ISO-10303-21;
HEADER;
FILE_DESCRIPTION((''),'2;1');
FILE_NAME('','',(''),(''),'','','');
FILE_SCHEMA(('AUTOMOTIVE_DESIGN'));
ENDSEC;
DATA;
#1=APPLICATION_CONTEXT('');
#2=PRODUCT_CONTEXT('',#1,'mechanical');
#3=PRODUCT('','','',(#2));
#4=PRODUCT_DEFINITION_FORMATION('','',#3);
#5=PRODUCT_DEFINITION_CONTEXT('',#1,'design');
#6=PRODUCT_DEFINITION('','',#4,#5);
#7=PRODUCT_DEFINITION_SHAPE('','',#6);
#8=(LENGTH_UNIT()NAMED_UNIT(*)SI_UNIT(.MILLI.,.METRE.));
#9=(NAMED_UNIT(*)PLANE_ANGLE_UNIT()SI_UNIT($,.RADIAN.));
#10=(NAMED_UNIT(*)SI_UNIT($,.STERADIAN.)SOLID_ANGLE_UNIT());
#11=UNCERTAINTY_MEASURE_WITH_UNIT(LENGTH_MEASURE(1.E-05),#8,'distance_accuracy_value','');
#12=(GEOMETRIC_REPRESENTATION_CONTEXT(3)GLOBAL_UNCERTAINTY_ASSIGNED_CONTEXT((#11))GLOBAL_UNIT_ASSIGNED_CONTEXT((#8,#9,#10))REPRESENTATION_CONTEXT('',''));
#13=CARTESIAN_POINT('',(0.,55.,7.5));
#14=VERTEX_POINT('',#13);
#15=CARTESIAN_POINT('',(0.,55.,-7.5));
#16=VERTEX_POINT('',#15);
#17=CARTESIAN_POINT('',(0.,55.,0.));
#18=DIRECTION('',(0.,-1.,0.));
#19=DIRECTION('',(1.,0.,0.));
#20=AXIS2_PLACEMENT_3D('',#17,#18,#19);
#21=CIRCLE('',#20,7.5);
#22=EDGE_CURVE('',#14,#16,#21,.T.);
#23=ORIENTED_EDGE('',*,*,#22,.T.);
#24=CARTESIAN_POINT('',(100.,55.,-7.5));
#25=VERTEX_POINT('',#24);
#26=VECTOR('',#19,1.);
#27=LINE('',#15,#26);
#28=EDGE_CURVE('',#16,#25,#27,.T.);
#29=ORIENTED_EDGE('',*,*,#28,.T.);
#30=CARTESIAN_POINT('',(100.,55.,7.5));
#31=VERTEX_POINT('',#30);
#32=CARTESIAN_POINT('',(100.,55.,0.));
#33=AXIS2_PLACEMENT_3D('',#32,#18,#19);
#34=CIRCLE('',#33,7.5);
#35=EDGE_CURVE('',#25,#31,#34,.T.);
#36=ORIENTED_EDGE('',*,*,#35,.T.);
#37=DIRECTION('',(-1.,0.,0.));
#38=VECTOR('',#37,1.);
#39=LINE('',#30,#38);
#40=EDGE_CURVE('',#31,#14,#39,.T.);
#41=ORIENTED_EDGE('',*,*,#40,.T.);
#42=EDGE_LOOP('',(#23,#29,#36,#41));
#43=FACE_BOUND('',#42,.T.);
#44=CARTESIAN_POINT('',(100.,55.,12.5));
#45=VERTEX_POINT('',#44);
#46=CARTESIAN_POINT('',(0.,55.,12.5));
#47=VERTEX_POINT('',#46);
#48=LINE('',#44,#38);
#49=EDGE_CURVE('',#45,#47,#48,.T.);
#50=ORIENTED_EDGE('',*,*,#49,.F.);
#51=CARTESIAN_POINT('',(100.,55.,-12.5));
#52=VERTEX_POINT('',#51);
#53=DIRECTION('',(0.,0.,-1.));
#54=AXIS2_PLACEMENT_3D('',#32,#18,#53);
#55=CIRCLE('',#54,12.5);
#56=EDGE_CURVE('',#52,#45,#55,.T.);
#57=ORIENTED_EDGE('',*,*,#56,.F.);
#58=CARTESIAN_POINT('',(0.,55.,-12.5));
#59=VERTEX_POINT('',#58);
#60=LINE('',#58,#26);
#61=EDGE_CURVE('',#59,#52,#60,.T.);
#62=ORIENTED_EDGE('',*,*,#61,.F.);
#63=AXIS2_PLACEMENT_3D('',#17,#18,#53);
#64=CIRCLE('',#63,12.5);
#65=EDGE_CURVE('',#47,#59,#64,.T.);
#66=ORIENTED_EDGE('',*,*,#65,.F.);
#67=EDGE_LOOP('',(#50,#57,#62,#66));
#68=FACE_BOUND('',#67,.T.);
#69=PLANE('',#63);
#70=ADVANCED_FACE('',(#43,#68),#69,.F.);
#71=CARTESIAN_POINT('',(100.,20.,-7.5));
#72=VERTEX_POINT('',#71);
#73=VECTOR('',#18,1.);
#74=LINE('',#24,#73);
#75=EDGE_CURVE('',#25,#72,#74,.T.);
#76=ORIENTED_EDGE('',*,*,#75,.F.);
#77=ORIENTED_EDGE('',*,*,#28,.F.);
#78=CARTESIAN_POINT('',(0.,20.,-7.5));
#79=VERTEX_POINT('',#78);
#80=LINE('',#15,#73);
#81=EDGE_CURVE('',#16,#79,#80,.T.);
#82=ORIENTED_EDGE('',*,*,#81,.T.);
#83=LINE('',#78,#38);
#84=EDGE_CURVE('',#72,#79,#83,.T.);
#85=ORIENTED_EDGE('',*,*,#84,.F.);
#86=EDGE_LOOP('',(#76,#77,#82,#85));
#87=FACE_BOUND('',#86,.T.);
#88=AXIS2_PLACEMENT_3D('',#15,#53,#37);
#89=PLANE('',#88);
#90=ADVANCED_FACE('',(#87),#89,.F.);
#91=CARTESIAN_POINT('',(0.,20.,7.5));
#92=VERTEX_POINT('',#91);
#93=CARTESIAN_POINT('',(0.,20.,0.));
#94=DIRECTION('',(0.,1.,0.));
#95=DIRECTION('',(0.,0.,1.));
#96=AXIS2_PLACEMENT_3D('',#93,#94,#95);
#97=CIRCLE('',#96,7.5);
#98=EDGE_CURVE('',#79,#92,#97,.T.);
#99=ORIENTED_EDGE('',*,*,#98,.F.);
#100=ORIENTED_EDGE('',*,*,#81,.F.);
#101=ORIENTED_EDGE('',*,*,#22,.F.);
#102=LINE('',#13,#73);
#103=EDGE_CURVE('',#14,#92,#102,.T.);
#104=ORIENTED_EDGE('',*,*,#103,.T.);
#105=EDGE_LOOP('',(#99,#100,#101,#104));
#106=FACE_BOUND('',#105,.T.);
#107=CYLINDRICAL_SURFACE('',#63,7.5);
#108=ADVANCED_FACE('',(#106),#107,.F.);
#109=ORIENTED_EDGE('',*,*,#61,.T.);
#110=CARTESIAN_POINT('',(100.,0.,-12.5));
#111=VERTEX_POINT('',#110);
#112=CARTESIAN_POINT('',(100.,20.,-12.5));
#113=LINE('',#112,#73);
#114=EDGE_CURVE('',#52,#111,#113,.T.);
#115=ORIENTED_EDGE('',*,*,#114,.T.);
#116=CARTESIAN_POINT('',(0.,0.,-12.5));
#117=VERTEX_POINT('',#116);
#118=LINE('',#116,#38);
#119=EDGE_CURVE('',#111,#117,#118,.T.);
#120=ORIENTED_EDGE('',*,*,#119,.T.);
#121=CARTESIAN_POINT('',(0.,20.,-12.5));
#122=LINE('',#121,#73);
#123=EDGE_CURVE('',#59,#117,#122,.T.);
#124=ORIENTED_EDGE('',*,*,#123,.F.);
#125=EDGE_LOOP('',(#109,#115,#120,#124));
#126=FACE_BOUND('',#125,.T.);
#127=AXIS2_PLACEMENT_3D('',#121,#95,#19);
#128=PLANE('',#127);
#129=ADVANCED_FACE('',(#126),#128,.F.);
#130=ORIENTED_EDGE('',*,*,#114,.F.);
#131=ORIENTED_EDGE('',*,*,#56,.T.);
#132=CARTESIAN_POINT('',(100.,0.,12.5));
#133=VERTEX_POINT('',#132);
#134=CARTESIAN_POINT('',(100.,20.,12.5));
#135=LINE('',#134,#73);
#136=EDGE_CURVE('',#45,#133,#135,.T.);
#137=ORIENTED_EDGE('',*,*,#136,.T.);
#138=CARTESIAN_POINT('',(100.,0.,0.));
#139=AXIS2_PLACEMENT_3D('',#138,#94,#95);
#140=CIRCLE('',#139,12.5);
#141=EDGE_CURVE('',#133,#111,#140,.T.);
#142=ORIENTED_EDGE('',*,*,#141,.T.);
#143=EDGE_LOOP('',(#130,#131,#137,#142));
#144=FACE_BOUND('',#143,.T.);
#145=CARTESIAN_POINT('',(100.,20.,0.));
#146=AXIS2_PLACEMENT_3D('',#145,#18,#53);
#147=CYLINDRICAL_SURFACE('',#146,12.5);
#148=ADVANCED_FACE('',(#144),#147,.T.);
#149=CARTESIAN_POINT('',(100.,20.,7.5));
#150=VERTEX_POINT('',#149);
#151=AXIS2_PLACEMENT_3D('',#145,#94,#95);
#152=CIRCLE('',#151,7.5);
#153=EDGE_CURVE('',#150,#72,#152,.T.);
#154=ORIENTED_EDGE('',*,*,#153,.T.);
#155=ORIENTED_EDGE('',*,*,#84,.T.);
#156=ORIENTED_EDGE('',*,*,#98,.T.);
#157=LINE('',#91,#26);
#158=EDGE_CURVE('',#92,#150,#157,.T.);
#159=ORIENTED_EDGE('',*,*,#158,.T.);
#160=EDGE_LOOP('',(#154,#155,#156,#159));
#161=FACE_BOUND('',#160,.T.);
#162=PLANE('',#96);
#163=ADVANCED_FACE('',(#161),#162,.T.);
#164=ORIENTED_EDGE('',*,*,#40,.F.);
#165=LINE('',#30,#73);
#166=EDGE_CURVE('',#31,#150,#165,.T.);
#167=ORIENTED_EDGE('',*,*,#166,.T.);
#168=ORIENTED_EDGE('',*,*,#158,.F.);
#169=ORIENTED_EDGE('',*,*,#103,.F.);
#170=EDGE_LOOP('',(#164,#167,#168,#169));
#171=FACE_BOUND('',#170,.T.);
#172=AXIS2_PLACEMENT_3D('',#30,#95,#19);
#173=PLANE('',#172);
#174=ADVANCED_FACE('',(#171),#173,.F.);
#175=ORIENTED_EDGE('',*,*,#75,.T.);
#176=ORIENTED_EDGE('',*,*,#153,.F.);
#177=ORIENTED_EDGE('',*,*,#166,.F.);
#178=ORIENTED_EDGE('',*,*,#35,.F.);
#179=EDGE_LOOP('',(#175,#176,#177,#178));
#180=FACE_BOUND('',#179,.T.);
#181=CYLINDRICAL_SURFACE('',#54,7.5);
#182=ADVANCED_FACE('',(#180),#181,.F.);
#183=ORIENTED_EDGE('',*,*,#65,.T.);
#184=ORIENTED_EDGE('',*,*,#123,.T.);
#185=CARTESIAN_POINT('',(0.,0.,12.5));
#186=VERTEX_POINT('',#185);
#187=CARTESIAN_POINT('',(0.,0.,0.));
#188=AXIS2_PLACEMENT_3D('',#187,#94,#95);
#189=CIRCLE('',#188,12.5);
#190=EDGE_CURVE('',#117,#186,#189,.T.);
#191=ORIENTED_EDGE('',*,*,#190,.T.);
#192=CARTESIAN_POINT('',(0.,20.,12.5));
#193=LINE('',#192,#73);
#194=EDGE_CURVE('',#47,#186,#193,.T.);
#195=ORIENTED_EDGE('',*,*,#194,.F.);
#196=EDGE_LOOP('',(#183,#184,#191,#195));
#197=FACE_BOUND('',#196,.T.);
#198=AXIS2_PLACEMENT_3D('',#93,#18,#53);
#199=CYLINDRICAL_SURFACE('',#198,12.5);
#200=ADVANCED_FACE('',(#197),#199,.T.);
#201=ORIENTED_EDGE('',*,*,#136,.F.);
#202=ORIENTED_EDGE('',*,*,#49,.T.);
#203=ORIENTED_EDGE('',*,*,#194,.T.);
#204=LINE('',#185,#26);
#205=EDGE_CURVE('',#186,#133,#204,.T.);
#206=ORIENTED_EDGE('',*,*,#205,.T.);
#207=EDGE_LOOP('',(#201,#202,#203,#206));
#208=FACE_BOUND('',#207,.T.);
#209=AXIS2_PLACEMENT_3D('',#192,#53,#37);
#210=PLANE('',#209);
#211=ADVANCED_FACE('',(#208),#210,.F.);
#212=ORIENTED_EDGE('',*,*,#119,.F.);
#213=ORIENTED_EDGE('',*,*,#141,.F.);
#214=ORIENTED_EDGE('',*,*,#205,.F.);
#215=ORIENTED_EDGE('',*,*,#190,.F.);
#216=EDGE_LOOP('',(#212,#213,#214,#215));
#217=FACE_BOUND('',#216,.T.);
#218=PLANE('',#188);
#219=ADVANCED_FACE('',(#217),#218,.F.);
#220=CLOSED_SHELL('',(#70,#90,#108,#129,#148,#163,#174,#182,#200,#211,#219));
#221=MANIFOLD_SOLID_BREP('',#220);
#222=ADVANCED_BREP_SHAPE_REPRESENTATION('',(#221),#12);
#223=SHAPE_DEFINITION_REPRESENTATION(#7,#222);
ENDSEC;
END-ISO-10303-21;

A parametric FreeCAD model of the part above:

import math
import FreeCAD as App
import Part
import Sketcher

V = App.Vector
Q = App.Units.Quantity

doc = App.newDocument("Part")
params = doc.addObject("Spreadsheet::Sheet", "Params")
for row, (alias, value) in enumerate([
    ("sketch1_radius", "12.5 mm"),
    ("sketch1_width", "100 mm"),
    ("pad1_length", "20 mm"),
    ("sketch2_radius", "12.5 mm"),
    ("sketch2_radius2", "7.5 mm"),
    ("sketch2_width", "100 mm"),
    ("pad2_length", "55 mm"),
], start=1):
    params.set(f"A{row}", alias)
    params.set(f"B{row}", "=" + value)
    params.setAlias(f"B{row}", alias)

body = doc.addObject("PartDesign::Body", "Body")

# Sketch on XZ plane
sketch1 = body.newObject("Sketcher::SketchObject", "Sketch")
sketch1.AttachmentSupport = (doc.getObject("XZ_Plane"), [""])
sketch1.MapMode = "FlatFace"
sketch1.addGeometry([
    Part.LineSegment(V(100, -12.5, 0), V(0, -12.5, 0)),
    Part.ArcOfCircle(Part.Circle(V(0, 0, 0), V(0, 0, 1), 12.5), math.radians(90), math.radians(270)),
    Part.LineSegment(V(0, 12.5, 0), V(100, 12.5, 0)),
    Part.ArcOfCircle(Part.Circle(V(100, 0, 0), V(0, 0, 1), 12.5), math.radians(-90), math.radians(90)),
], False)
sketch1.addConstraint([
    Sketcher.Constraint("Tangent", 0, 2, 1, 2),
    Sketcher.Constraint("Tangent", 1, 1, 2, 1),
    Sketcher.Constraint("Tangent", 2, 2, 3, 2),
    Sketcher.Constraint("Tangent", 3, 1, 0, 1),
    Sketcher.Constraint("Horizontal", 0),
    Sketcher.Constraint("Horizontal", 2),
    Sketcher.Constraint("Coincident", 1, 3, -1, 1),
    Sketcher.Constraint("Radius", 1, Q("12.5 mm")),
    Sketcher.Constraint("DistanceX", 0, 2, 0, 1, Q("100 mm")),
])
sketch1.setExpression("Constraints[7]", "Params.sketch1_radius")
sketch1.setExpression("Constraints[8]", "Params.sketch1_width")
pad1 = body.newObject("PartDesign::Pad", "Pad")
pad1.Profile = sketch1
pad1.setExpression("Length", "Params.pad1_length")
pad1.Reversed = True

# Sketch on XZ plane
sketch2 = body.newObject("Sketcher::SketchObject", "Sketch001")
sketch2.AttachmentSupport = (doc.getObject("XZ_Plane"), [""])
sketch2.MapMode = "FlatFace"
sketch2.addGeometry([
    Part.LineSegment(V(100, 12.5, 0), V(0, 12.5, 0)),  # 0
    Part.ArcOfCircle(Part.Circle(V(0, 0, 0), V(0, 0, 1), 12.5), math.radians(90), math.radians(270)),  # 1
    Part.LineSegment(V(0, -12.5, 0), V(100, -12.5, 0)),  # 2
    Part.ArcOfCircle(Part.Circle(V(100, 0, 0), V(0, 0, 1), 12.5), math.radians(-90), math.radians(90)),  # 3
    Part.LineSegment(V(0, 7.5, 0), V(100, 7.5, 0)),  # 4
    Part.ArcOfCircle(Part.Circle(V(100, 0, 0), V(0, 0, 1), 7.5), math.radians(-90), math.radians(90)),  # 5
    Part.LineSegment(V(100, -7.5, 0), V(0, -7.5, 0)),  # 6
    Part.ArcOfCircle(Part.Circle(V(0, 0, 0), V(0, 0, 1), 7.5), math.radians(90), math.radians(270)),  # 7
], False)
sketch2.addConstraint([
    Sketcher.Constraint("Tangent", 0, 2, 1, 1),
    Sketcher.Constraint("Tangent", 1, 2, 2, 1),
    Sketcher.Constraint("Tangent", 2, 2, 3, 1),
    Sketcher.Constraint("Tangent", 3, 2, 0, 1),
    Sketcher.Constraint("Tangent", 4, 2, 5, 2),
    Sketcher.Constraint("Tangent", 5, 1, 6, 1),
    Sketcher.Constraint("Tangent", 6, 2, 7, 2),
    Sketcher.Constraint("Tangent", 7, 1, 4, 1),
    Sketcher.Constraint("Horizontal", 0),
    Sketcher.Constraint("Horizontal", 2),
    Sketcher.Constraint("Horizontal", 4),
    Sketcher.Constraint("Horizontal", 6),
    Sketcher.Constraint("Coincident", 1, 3, -1, 1),
    Sketcher.Constraint("Coincident", 7, 3, -1, 1),
    Sketcher.Constraint("Vertical", 5, 3, 2, 2),
    Sketcher.Constraint("Radius", 1, Q("12.5 mm")),
    Sketcher.Constraint("Radius", 5, Q("7.5 mm")),
    Sketcher.Constraint("DistanceX", 0, 2, 0, 1, Q("100 mm")),
])
sketch2.setExpression("Constraints[15]", "Params.sketch2_radius")
sketch2.setExpression("Constraints[16]", "Params.sketch2_radius2")
sketch2.setExpression("Constraints[17]", "Params.sketch2_width")
pad2 = body.newObject("PartDesign::Pad", "Pad001")
pad2.Profile = sketch2
pad2.setExpression("Length", "Params.pad2_length")
pad2.Reversed = True

doc.recompute()
